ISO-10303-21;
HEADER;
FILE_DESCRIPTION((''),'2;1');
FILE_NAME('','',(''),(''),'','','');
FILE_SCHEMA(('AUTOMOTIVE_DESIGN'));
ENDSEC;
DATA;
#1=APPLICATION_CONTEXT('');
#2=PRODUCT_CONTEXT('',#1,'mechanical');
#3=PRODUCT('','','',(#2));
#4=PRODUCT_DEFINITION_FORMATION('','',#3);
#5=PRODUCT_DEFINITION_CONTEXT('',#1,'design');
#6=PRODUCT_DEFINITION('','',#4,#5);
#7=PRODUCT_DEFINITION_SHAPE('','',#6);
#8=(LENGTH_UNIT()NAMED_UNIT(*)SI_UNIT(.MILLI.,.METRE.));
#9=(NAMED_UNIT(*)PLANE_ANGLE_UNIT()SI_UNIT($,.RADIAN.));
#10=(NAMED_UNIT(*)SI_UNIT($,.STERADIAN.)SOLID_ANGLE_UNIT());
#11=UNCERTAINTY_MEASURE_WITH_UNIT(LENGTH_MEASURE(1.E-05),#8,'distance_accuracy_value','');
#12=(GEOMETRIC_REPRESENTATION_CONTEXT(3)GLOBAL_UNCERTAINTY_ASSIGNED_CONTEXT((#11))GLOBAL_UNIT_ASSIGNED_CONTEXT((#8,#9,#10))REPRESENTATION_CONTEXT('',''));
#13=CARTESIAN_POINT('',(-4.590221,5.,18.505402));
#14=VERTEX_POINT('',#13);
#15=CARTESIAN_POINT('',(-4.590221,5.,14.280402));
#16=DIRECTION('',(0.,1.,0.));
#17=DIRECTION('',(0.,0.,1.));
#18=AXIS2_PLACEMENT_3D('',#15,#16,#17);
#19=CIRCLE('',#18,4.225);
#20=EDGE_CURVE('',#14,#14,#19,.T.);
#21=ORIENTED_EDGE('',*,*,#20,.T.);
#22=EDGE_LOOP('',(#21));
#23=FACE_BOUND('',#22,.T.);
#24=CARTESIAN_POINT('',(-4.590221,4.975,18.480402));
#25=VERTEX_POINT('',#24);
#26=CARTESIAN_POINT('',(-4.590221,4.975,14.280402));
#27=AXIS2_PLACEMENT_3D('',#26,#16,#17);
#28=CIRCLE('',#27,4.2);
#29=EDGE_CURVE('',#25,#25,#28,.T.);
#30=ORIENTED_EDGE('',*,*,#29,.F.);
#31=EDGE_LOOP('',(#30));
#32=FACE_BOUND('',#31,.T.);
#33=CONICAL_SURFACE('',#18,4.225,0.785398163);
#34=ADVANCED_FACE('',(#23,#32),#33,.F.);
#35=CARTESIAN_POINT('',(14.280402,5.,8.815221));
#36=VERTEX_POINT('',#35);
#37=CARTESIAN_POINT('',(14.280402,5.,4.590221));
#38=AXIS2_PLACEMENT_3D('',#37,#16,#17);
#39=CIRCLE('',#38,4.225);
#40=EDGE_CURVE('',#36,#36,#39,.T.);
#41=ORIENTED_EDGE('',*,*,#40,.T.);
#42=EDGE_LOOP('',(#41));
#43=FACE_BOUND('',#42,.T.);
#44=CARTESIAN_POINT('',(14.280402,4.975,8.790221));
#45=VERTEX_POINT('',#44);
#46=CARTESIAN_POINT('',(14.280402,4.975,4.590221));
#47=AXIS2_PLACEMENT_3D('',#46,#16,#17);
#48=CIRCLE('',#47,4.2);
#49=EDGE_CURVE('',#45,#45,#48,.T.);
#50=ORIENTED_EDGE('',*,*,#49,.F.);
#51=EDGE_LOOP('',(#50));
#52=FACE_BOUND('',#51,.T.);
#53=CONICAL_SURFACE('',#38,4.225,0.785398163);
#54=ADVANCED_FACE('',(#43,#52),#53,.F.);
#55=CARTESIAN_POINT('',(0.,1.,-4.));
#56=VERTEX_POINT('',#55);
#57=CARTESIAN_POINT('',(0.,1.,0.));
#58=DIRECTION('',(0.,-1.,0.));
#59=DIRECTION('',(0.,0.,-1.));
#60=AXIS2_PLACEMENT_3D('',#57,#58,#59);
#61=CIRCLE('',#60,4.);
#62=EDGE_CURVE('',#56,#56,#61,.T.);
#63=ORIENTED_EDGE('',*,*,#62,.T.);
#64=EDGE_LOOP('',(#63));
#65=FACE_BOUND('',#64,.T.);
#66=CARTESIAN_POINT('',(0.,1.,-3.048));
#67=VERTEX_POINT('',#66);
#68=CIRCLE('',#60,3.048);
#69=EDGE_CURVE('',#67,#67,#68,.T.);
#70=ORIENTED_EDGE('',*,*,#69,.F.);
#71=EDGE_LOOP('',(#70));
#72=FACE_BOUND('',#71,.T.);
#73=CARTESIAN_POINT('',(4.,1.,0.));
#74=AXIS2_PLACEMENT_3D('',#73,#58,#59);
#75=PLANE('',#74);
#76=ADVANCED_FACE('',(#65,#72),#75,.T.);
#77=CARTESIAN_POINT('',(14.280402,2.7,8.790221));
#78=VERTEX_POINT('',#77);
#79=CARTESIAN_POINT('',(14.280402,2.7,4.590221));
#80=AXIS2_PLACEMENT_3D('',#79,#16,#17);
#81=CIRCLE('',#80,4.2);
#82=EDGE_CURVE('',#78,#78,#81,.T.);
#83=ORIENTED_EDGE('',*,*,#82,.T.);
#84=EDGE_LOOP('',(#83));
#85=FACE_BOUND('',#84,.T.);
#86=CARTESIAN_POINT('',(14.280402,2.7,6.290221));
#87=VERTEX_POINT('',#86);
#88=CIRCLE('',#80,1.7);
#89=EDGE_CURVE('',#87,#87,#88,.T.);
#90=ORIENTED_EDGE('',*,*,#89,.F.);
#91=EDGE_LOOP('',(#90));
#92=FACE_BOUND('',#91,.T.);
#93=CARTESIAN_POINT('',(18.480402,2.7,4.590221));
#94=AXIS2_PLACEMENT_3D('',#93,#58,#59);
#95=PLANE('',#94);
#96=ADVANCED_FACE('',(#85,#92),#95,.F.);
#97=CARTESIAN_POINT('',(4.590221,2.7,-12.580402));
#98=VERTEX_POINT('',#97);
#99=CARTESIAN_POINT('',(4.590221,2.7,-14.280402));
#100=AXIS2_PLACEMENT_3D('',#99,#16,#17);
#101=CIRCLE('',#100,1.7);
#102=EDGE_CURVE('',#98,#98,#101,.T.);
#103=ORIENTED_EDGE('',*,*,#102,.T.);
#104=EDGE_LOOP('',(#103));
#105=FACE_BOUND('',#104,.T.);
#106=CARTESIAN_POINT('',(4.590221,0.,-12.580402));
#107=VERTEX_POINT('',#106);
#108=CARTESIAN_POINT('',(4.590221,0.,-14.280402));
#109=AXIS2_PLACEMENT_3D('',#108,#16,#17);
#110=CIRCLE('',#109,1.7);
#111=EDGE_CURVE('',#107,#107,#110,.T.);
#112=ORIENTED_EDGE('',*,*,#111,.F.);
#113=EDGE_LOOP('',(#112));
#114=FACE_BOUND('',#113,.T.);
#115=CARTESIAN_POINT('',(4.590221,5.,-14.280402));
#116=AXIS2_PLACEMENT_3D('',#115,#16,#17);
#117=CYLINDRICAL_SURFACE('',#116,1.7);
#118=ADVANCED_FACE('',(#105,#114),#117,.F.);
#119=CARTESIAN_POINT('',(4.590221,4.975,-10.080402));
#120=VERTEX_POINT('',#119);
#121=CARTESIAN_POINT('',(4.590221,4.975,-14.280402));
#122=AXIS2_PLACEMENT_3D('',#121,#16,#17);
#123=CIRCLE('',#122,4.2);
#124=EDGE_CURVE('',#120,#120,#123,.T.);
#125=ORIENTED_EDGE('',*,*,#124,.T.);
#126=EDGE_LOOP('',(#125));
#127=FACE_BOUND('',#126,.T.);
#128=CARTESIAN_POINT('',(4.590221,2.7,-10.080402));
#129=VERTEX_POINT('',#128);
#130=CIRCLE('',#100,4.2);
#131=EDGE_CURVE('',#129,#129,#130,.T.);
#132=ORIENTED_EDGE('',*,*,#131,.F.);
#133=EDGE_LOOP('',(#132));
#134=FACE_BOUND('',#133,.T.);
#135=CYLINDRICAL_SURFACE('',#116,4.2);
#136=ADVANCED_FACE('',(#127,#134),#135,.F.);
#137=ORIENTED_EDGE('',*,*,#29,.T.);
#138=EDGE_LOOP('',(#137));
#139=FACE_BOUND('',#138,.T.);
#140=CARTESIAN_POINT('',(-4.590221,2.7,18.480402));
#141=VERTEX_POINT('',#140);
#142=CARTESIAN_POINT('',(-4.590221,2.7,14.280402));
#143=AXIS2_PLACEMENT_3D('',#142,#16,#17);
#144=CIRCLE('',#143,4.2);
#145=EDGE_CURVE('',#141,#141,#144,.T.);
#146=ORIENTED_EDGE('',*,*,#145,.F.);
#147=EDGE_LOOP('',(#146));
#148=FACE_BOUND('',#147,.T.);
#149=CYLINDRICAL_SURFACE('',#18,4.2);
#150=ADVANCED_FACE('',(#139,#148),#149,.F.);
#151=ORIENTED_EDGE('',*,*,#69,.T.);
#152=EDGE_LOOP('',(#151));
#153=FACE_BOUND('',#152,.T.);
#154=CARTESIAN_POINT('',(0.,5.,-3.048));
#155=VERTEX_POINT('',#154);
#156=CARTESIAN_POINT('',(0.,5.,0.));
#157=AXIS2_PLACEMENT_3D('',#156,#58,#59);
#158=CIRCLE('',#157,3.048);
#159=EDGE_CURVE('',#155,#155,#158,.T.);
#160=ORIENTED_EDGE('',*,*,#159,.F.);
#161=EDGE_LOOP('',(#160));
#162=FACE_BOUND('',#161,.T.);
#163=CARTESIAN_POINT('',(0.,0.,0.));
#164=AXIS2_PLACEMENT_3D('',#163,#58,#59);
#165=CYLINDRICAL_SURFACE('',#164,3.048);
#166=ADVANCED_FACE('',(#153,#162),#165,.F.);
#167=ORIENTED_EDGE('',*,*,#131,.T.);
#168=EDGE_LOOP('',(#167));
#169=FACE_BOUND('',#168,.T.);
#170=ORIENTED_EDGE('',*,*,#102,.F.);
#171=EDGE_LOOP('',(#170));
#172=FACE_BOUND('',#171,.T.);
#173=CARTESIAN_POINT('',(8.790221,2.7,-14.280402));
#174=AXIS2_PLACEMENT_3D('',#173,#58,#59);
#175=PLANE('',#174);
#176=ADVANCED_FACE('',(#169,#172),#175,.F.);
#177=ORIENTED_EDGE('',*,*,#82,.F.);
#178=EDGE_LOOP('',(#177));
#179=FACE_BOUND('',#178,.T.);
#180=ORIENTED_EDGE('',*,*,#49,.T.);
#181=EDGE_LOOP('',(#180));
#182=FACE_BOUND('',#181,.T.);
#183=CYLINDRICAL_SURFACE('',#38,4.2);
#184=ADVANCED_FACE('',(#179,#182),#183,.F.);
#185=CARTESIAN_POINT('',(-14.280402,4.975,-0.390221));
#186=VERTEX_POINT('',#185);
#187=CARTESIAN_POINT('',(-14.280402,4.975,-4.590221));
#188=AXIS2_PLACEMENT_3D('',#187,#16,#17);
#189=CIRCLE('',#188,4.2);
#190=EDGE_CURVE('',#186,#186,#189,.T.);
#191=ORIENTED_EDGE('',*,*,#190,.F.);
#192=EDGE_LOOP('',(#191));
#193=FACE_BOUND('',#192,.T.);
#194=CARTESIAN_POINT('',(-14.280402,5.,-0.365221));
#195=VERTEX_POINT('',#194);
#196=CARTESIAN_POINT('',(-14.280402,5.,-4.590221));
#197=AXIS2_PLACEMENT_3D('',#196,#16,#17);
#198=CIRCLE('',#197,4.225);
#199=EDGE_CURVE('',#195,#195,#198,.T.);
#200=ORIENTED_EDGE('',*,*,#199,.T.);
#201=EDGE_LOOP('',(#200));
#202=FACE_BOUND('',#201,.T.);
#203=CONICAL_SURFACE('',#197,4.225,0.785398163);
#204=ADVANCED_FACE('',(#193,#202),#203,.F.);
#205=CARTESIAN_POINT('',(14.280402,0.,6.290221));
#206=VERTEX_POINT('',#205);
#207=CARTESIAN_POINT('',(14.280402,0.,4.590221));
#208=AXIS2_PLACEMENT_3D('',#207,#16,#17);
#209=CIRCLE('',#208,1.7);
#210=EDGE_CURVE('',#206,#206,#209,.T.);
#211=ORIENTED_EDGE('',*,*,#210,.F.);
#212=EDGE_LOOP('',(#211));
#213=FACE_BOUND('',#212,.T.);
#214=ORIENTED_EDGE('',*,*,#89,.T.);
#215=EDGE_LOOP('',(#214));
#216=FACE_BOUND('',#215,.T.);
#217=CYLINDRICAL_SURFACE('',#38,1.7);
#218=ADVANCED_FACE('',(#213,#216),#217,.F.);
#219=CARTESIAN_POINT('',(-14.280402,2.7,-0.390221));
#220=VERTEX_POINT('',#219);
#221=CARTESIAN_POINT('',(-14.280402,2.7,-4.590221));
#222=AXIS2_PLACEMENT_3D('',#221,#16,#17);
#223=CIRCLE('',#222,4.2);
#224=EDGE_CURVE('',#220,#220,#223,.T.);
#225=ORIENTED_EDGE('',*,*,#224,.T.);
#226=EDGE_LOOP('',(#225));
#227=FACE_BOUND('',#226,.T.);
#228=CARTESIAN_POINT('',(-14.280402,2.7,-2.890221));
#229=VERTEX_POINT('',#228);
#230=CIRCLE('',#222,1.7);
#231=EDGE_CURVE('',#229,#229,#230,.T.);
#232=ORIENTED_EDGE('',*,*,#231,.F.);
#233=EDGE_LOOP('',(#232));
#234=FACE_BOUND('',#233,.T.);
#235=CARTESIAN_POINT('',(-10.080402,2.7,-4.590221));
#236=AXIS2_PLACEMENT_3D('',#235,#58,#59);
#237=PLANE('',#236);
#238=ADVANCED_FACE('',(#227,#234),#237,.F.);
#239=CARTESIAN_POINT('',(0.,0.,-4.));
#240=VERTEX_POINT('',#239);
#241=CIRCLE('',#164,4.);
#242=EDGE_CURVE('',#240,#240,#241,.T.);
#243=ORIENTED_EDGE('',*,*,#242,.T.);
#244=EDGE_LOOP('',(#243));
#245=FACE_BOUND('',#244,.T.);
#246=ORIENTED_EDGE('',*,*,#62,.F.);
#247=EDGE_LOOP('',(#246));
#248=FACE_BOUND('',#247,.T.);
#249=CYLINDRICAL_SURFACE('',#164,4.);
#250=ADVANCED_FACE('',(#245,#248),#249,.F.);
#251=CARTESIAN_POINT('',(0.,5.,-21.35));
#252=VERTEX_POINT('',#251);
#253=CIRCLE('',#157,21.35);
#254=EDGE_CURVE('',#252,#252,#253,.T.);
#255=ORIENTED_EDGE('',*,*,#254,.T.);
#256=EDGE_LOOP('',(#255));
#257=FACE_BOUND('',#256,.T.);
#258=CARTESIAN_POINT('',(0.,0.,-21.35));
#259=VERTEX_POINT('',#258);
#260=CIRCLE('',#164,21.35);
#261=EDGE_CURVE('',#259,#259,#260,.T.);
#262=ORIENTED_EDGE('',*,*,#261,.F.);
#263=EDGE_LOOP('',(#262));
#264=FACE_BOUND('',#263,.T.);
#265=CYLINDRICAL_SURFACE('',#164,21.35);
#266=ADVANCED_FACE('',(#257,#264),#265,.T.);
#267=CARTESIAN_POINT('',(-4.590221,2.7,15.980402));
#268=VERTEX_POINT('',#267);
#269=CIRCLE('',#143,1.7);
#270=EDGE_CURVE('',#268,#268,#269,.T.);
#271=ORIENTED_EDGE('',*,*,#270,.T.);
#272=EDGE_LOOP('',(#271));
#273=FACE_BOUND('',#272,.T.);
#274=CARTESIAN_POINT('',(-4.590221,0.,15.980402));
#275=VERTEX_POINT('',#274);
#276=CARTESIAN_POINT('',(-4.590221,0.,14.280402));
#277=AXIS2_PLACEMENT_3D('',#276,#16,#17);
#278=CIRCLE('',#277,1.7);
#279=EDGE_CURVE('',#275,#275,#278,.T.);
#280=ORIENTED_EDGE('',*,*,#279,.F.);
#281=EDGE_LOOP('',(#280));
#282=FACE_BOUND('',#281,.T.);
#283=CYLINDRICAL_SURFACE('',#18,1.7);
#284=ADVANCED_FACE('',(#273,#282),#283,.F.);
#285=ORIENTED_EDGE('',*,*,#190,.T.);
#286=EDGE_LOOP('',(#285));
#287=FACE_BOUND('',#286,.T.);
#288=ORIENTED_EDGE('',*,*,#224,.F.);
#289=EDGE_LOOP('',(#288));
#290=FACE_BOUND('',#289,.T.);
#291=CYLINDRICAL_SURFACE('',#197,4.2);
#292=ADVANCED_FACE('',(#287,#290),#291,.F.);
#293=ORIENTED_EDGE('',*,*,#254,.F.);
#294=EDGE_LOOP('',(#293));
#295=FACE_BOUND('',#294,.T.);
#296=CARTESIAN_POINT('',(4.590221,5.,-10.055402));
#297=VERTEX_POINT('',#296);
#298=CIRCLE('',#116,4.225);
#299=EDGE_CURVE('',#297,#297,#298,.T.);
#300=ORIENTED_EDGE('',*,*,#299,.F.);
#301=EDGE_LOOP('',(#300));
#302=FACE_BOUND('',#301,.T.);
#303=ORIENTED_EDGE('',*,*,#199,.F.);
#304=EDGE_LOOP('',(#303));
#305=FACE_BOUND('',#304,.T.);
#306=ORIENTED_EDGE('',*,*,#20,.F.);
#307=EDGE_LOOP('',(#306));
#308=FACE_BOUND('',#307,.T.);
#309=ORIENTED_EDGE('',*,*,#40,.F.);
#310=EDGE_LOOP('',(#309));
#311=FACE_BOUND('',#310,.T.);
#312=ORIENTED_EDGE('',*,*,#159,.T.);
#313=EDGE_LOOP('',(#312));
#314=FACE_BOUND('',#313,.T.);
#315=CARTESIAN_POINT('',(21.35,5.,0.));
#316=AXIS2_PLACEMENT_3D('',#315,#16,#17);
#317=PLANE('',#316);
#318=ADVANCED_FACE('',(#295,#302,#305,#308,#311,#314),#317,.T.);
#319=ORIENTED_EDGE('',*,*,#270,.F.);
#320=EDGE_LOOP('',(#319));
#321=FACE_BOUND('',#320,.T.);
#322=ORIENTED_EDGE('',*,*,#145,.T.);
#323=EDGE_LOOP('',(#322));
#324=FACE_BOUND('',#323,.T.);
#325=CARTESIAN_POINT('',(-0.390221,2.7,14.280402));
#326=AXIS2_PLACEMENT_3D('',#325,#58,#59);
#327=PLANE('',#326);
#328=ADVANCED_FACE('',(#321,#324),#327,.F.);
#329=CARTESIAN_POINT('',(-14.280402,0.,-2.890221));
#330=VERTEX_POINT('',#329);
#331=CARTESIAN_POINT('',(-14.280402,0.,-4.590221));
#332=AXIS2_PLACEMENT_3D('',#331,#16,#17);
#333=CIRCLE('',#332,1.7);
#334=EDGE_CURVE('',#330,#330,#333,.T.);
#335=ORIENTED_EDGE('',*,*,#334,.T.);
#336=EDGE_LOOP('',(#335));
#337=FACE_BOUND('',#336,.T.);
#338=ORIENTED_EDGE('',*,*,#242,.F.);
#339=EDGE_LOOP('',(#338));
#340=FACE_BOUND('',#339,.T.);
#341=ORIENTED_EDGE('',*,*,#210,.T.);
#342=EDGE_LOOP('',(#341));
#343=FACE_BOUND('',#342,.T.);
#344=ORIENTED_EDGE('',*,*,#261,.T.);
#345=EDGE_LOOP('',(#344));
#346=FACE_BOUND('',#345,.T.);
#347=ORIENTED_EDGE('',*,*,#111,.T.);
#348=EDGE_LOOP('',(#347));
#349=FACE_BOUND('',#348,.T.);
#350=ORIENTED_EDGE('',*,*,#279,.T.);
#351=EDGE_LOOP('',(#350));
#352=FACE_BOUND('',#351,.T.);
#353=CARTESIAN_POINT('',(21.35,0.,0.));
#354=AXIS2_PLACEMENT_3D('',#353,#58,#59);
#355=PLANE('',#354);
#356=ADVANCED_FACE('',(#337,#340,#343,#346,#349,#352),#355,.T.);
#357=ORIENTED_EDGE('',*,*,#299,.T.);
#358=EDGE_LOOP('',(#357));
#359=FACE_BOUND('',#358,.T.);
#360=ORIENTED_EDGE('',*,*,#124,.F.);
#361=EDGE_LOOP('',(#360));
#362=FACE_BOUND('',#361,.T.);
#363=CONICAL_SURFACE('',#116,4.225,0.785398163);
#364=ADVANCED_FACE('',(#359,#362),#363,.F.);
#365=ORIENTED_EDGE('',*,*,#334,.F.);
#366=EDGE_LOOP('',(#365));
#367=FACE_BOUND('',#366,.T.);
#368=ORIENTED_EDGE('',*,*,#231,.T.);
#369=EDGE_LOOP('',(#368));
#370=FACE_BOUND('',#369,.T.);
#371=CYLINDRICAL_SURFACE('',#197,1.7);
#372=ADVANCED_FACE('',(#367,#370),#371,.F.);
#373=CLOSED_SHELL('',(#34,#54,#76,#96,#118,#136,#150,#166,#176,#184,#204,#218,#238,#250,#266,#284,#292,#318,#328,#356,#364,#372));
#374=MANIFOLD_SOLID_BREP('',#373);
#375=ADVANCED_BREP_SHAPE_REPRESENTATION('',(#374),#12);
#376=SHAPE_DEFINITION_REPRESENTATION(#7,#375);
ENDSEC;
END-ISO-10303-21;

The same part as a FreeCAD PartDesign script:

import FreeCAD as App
import Part
import Sketcher
from FreeCAD import Vector
Q = App.Units.Quantity

doc = App.newDocument("Part")
params = doc.addObject("Spreadsheet::Sheet", "Params")
for row, (alias, value) in enumerate([
    ("sketch1_height", "5 mm"),
    ("sketch1_height2", "4 mm"),
    ("sketch1_width", "17.35 mm"),
    ("revolution_angle", "360 deg"),
    ("sketch2_width", "5 mm"),
    ("sketch2_width2", "2.7 mm"),
    ("sketch2_height", "2.5 mm"),
    ("sketch2_height2", "1.7 mm"),
    ("groove_angle", "360 deg"),
    ("linearpattern_pitch", "21.213203 mm"),
    ("linearpattern2_pitch", "21.213203 mm"),
    ("linearpattern3_pitch", "30 mm"),
], start=1):
    params.set(f"A{row}", alias)
    params.set(f"B{row}", "=" + value)
    params.setAlias(f"B{row}", alias)

body = doc.addObject("PartDesign::Body", "Body")

# Sketch on XY plane
sketch1 = body.newObject("Sketcher::SketchObject", "Sketch")
sketch1.AttachmentSupport = (doc.getObject("XY_Plane"), [""])
sketch1.MapMode = "FlatFace"
sketch1.addGeometry([
    Part.LineSegment(Vector(21.4, 0, 0), Vector(21.4, 5, 0)),  # 0
    Part.LineSegment(Vector(21.4, 5, 0), Vector(3, 5, 0)),  # 1
    Part.LineSegment(Vector(3, 5, 0), Vector(3, 1, 0)),  # 2
    Part.LineSegment(Vector(3, 1, 0), Vector(4, 1, 0)),  # 3
    Part.LineSegment(Vector(4, 1, 0), Vector(4, 0, 0)),  # 4
    Part.LineSegment(Vector(4, 0, 0), Vector(21.4, 0, 0)),  # 5
], False)
sketch1.addConstraint([
    Sketcher.Constraint("Coincident", 0, 2, 1, 1),
    Sketcher.Constraint("Coincident", 1, 2, 2, 1),
    Sketcher.Constraint("Coincident", 2, 2, 3, 1),
    Sketcher.Constraint("Coincident", 3, 2, 4, 1),
    Sketcher.Constraint("Coincident", 4, 2, 5, 1),
    Sketcher.Constraint("Coincident", 5, 2, 0, 1),
    Sketcher.Constraint("Vertical", 0),
    Sketcher.Constraint("Horizontal", 1),
    Sketcher.Constraint("Vertical", 2),
    Sketcher.Constraint("Horizontal", 3),
    Sketcher.Constraint("Vertical", 4),
    Sketcher.Constraint("Horizontal", 5),
    Sketcher.Constraint("PointOnObject", 4, 2, -1),
    Sketcher.Constraint("DistanceY", 0, 1, 0, 2, Q("5 mm")),
    Sketcher.Constraint("DistanceY", 2, 2, 2, 1, Q("4 mm")),
    Sketcher.Constraint("DistanceX", -1, 1, 3, 2, Q("4 mm")),
    Sketcher.Constraint("DistanceX", 5, 1, 5, 2, Q("17.35 mm")),
    Sketcher.Constraint("DistanceX", 1, 2, 1, 1, Q("18.302 mm")),
])
sketch1.setExpression("Constraints[13]", "Params.sketch1_height")
sketch1.setExpression("Constraints[14]", "Params.sketch1_height2")
sketch1.setExpression("Constraints[16]", "Params.sketch1_width")
revolution = body.newObject("PartDesign::Revolution", "Revolution")
revolution.Profile = sketch1
revolution.ReferenceAxis = (sketch1, ["V_Axis"])
revolution.setExpression("Angle", "Params.revolution_angle")

# Sketch on YZ plane
sketch2 = body.newObject("Sketcher::SketchObject", "Sketch001")
sketch2.AttachmentSupport = (doc.getObject("YZ_Plane"), [""])
sketch2.MapMode = "FlatFace"
sketch2.AttachmentOffset = App.Placement(Vector(0, 0, 4.590221), App.Rotation())
sketch2.addGeometry([
    Part.LineSegment(Vector(0, -14.28, 0), Vector(5, -14.28, 0)),  # 0
    Part.LineSegment(Vector(5, -14.28, 0), Vector(5, -10.055, 0)),  # 1
    Part.LineSegment(Vector(5, -10.055, 0), Vector(4.975, -10.08, 0)),  # 2
    Part.LineSegment(Vector(4.975, -10.08, 0), Vector(2.7, -10.08, 0)),  # 3
    Part.LineSegment(Vector(2.7, -10.08, 0), Vector(2.7, -12.58, 0)),  # 4
    Part.LineSegment(Vector(2.7, -12.58, 0), Vector(0, -12.58, 0)),  # 5
    Part.LineSegment(Vector(0, -12.58, 0), Vector(0, -14.28, 0)),  # 6
], False)
sketch2.addGeometry(Part.LineSegment(Vector(5, -14.28, 0), Vector(0, -14.28, 0)), True)  # axis
sketch2.addConstraint([
    Sketcher.Constraint("Coincident", 0, 2, 1, 1),
    Sketcher.Constraint("Coincident", 1, 2, 2, 1),
    Sketcher.Constraint("Coincident", 2, 2, 3, 1),
    Sketcher.Constraint("Coincident", 3, 2, 4, 1),
    Sketcher.Constraint("Coincident", 4, 2, 5, 1),
    Sketcher.Constraint("Coincident", 5, 2, 6, 1),
    Sketcher.Constraint("Coincident", 6, 2, 0, 1),
    Sketcher.Constraint("Horizontal", 0),
    Sketcher.Constraint("Vertical", 1),
    Sketcher.Constraint("Horizontal", 3),
    Sketcher.Constraint("Vertical", 4),
    Sketcher.Constraint("Horizontal", 5),
    Sketcher.Constraint("Vertical", 6),
    Sketcher.Constraint("Horizontal", 7),
    Sketcher.Constraint("Coincident", 7, 1, 0, 2),
    Sketcher.Constraint("PointOnObject", 5, 2, -2),
    Sketcher.Constraint("PointOnObject", 7, 2, -2),
    Sketcher.Constraint("DistanceX", 0, 1, 0, 2, Q("5 mm")),
    Sketcher.Constraint("Angle", 2, Q("-135 deg")),
    Sketcher.Constraint("DistanceX", 5, 2, 5, 1, Q("2.7 mm")),
    Sketcher.Constraint("DistanceY", 4, 2, 4, 1, Q("2.5 mm")),
    Sketcher.Constraint("DistanceY", 6, 2, 6, 1, Q("1.7 mm")),
    Sketcher.Constraint("DistanceX", 3, 2, 3, 1, Q("2.275 mm")),
    Sketcher.Constraint("DistanceY", 0, 2, -1, 1, Q("14.280402 mm")),
])
sketch2.setExpression("Constraints[17]", "Params.sketch2_width")
sketch2.setExpression("Constraints[19]", "Params.sketch2_width2")
sketch2.setExpression("Constraints[20]", "Params.sketch2_height")
sketch2.setExpression("Constraints[21]", "Params.sketch2_height2")
groove = body.newObject("PartDesign::Groove", "Groove")
groove.Profile = sketch2
groove.ReferenceAxis = (sketch2, ["Axis0"])
groove.setExpression("Angle", "Params.groove_angle")
doc.recompute()

datumline = body.newObject("PartDesign::Line", "DatumLine")
datumline.Placement = App.Placement(Vector(0, 0, 0), App.Rotation(Vector(0, 0, 1), Vector(-0.889569685, 0, 0.456799492)))
linearpattern = body.newObject("PartDesign::LinearPattern", "LinearPattern")
linearpattern.Originals = [groove]
linearpattern.Direction = (datumline, [""])
linearpattern.Mode = "offset"
linearpattern.setExpression("Offset", "Params.linearpattern_pitch")
linearpattern.Occurrences = 2
body.Tip = linearpattern
doc.recompute()

datumline2 = body.newObject("PartDesign::Line", "DatumLine001")
datumline2.Placement = App.Placement(Vector(0, 0, 0), App.Rotation(Vector(0, 0, 1), Vector(0.456799492, 0, 0.889569685)))
linearpattern2 = body.newObject("PartDesign::LinearPattern", "LinearPattern001")
linearpattern2.Originals = [groove]
linearpattern2.Direction = (datumline2, [""])
linearpattern2.Mode = "offset"
linearpattern2.setExpression("Offset", "Params.linearpattern2_pitch")
linearpattern2.Occurrences = 2
body.Tip = linearpattern2
doc.recompute()

datumline3 = body.newObject("PartDesign::Line", "DatumLine002")
datumline3.Placement = App.Placement(Vector(0, 0, 0), App.Rotation(Vector(0, 0, 1), Vector(-0.306014738, 0, 0.952026775)))
linearpattern3 = body.newObject("PartDesign::LinearPattern", "LinearPattern002")
linearpattern3.Originals = [groove]
linearpattern3.Direction = (datumline3, [""])
linearpattern3.Mode = "offset"
linearpattern3.setExpression("Offset", "Params.linearpattern3_pitch")
linearpattern3.Occurrences = 2
body.Tip = linearpattern3

doc.recompute()
